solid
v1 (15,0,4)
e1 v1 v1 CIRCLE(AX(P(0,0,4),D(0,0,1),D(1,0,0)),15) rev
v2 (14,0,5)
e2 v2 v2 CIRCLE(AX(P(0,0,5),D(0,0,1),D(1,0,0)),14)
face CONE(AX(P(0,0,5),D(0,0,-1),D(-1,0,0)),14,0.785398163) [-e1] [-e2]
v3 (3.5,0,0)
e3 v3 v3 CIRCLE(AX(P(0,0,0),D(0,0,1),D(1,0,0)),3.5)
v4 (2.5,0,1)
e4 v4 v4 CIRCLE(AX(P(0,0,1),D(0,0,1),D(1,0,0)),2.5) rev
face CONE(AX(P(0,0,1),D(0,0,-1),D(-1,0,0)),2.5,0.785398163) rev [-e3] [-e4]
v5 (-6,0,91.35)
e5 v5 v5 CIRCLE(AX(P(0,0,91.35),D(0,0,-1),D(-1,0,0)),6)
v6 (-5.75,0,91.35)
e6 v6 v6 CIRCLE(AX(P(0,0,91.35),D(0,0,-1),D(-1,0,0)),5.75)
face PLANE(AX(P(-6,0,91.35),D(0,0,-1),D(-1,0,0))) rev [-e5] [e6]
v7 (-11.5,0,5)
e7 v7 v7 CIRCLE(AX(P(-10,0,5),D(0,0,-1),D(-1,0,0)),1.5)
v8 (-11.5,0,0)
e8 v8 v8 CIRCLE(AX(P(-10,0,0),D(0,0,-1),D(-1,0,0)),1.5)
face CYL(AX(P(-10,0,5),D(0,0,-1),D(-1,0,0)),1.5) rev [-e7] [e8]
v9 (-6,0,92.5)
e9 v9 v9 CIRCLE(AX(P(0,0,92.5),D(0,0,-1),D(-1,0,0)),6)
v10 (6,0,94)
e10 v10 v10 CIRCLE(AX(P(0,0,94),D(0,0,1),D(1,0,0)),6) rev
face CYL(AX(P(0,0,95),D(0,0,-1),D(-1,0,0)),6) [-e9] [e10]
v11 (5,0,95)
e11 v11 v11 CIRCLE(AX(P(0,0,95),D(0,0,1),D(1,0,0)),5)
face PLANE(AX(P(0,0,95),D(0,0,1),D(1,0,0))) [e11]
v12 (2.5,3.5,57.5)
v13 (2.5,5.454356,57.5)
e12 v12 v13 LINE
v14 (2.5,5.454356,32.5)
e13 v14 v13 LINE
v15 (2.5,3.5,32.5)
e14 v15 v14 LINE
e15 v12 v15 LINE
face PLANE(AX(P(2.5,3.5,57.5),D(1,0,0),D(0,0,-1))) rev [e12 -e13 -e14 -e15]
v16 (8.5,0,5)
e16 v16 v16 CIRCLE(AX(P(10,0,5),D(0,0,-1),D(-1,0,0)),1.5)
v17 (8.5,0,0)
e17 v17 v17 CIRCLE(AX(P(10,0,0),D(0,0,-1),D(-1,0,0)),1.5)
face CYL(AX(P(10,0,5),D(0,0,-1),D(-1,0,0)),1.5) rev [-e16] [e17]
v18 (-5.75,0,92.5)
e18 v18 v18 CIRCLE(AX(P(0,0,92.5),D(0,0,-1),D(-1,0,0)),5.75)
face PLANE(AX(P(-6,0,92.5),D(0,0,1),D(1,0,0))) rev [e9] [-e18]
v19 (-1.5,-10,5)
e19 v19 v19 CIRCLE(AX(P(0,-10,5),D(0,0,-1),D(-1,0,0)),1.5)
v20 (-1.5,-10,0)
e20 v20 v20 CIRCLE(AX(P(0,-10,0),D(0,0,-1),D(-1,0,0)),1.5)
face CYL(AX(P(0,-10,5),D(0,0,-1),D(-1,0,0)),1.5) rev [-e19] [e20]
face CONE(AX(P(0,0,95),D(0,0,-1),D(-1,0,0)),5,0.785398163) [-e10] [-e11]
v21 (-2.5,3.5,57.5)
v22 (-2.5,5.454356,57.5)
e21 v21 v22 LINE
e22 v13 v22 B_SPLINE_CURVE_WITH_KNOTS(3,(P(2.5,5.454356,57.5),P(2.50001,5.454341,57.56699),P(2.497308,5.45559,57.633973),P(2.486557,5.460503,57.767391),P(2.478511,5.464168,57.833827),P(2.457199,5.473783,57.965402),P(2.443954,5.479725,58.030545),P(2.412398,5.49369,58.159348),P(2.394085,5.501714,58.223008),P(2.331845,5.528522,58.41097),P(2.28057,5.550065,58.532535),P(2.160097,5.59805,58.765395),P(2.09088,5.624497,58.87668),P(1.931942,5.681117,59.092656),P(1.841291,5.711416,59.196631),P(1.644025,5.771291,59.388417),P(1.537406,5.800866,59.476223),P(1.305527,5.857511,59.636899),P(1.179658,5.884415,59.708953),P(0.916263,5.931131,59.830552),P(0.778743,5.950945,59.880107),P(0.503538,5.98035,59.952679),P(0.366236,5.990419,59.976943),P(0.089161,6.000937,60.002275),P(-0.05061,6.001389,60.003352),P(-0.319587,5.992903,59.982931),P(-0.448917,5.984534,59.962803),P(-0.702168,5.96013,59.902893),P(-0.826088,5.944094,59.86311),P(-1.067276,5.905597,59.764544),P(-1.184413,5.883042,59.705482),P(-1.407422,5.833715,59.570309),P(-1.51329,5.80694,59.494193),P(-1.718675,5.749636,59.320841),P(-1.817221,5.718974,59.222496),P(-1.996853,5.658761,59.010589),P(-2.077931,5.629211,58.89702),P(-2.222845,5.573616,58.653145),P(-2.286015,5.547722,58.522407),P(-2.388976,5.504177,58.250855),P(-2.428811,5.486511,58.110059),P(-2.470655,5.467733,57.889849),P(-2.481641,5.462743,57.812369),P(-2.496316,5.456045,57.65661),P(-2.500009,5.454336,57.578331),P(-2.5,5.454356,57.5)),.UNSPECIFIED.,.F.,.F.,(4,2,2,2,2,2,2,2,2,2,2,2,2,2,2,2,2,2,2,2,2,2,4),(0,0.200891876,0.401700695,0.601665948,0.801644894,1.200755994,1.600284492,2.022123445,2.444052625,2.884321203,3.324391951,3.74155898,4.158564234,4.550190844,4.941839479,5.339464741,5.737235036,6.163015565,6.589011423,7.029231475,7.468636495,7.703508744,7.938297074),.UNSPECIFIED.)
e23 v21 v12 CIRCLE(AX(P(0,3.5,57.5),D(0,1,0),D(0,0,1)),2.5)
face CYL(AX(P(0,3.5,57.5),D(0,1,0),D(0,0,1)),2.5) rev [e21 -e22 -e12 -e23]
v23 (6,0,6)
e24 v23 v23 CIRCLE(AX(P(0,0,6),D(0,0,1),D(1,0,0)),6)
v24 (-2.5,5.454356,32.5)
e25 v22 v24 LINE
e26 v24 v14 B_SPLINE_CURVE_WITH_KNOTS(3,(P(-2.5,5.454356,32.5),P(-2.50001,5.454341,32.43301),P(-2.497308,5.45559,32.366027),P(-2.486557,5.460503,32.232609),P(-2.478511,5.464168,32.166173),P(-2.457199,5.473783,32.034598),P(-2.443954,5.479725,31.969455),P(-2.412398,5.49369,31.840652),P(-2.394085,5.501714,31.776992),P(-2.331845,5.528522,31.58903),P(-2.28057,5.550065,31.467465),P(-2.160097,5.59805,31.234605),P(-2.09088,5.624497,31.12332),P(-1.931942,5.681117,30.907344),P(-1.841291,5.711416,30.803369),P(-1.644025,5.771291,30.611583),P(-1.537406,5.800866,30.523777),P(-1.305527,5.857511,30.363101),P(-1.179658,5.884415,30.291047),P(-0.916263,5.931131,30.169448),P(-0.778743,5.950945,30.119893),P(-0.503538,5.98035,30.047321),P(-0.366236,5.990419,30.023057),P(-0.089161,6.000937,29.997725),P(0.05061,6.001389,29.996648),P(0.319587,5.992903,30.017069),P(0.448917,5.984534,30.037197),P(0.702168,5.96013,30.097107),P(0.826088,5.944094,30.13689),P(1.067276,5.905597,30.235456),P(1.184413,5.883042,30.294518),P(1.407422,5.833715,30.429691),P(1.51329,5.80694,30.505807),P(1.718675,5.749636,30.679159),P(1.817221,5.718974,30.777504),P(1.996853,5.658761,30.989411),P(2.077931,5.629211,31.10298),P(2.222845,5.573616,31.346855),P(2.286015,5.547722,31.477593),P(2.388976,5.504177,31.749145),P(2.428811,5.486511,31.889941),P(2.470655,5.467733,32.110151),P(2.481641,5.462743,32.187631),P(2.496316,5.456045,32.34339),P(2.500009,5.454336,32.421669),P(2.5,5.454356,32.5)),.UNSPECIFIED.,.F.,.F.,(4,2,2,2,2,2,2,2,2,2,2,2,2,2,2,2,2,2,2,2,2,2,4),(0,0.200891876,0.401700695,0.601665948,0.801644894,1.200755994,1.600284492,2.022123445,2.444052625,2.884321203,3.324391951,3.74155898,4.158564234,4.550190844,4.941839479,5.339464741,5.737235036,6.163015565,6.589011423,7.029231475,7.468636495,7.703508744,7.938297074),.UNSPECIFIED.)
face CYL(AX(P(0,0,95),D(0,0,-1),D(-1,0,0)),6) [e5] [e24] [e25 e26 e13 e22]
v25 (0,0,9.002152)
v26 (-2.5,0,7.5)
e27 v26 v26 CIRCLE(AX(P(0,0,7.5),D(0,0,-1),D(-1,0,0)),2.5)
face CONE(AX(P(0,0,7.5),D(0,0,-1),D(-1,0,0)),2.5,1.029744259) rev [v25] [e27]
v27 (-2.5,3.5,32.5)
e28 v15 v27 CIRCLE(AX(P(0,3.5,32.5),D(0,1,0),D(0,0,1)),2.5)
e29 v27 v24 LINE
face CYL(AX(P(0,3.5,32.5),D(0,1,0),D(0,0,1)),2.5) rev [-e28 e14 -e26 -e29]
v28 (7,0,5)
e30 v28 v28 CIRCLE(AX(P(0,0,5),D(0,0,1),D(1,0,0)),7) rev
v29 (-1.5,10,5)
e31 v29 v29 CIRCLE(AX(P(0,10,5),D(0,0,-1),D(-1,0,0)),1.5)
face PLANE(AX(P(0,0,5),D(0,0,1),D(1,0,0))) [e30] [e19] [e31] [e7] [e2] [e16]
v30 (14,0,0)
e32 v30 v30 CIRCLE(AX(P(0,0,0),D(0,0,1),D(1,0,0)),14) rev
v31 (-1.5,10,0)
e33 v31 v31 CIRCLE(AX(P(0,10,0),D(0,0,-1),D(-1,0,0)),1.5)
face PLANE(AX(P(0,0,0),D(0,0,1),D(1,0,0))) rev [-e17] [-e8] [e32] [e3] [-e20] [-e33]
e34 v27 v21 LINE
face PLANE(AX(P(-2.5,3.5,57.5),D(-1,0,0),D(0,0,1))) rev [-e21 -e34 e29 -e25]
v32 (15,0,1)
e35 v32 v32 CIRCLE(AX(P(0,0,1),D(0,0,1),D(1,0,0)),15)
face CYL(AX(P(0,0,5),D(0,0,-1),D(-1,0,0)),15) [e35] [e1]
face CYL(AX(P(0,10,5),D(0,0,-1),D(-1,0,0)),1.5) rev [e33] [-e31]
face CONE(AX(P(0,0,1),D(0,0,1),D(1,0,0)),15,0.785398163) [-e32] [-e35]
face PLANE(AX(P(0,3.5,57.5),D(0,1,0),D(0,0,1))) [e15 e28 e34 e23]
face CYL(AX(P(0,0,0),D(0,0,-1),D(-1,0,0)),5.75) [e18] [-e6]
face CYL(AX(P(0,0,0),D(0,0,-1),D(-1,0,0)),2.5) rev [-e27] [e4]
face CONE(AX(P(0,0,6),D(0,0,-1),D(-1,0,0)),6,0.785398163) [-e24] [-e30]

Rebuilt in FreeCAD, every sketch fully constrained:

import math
import FreeCAD as App
import Part
import Sketcher
Q = App.Units.Quantity


def edges_at(feature, points):
    """Names of the edges that pass closest to the given points."""
    edges = feature.Shape.Edges
    near = lambda p: min(range(len(edges)), key=lambda i: edges[i].distToShape(Part.Vertex(*p))[0])
    return sorted({f"Edge{near(p) + 1}" for p in points})

doc = App.newDocument("Part")
body = doc.addObject("PartDesign::Body", "Body")

# Sketch on XY plane
sketch1 = doc.addObject("Sketcher::SketchObject", "Sketch")
body.addObject(sketch1)
sketch1.AttachmentSupport = (doc.XY_Plane, [""])
sketch1.MapMode = "FlatFace"
sketch1.addGeometry(Part.Circle(App.Vector(0, 0, 0), App.Vector(0, 0, 1), 15), False)
sketch1.addConstraint(Sketcher.Constraint("Coincident", 0, 3, -1, 1))
sketch1.addConstraint(Sketcher.Constraint("Diameter", 0, Q("30 mm")))
pad1 = doc.addObject("PartDesign::Pad", "Pad")
body.addObject(pad1)
pad1.Profile = sketch1
pad1.Length = 5

# Sketch on XY plane
sketch2 = doc.addObject("Sketcher::SketchObject", "Sketch001")
body.addObject(sketch2)
sketch2.AttachmentSupport = (doc.XY_Plane, [""])
sketch2.MapMode = "FlatFace"
sketch2.addGeometry(Part.Circle(App.Vector(-10, 0, 0), App.Vector(0, 0, 1), 1.5), False)
sketch2.addGeometry(Part.Circle(App.Vector(0, -10, 0), App.Vector(0, 0, 1), 1.5), False)
sketch2.addGeometry(Part.Circle(App.Vector(10, 0, 0), App.Vector(0, 0, 1), 1.5), False)
sketch2.addGeometry(Part.Circle(App.Vector(0, 10, 0), App.Vector(0, 0, 1), 1.5), False)
sketch2.addConstraint(Sketcher.Constraint("Equal", 0, 1))
sketch2.addConstraint(Sketcher.Constraint("Equal", 1, 2))
sketch2.addConstraint(Sketcher.Constraint("Equal", 2, 3))
sketch2.addConstraint(Sketcher.Constraint("Symmetric", 0, 3, 2, 3, -1, 1))
sketch2.addConstraint(Sketcher.Constraint("Symmetric", 1, 3, 3, 3, -1, 1))
sketch2.addConstraint(Sketcher.Constraint("PointOnObject", 0, 3, -1))
sketch2.addConstraint(Sketcher.Constraint("PointOnObject", 1, 3, -2))
sketch2.addConstraint(Sketcher.Constraint("Diameter", 0, Q("3 mm")))
sketch2.addConstraint(Sketcher.Constraint("DistanceX", 0, 3, -1, 1, Q("10 mm")))
sketch2.addConstraint(Sketcher.Constraint("DistanceY", 1, 3, -1, 1, Q("10 mm")))
pocket1 = doc.addObject("PartDesign::Pocket", "Pocket")
body.addObject(pocket1)
pocket1.Profile = sketch2
pocket1.Type = "ThroughAll"
pocket1.Midplane = True

# Sketch on XY plane
sketch3 = doc.addObject("Sketcher::SketchObject", "Sketch002")
body.addObject(sketch3)
sketch3.AttachmentSupport = (doc.XY_Plane, [""])
sketch3.MapMode = "FlatFace"
sketch3.AttachmentOffset = App.Placement(App.Vector(0, 0, 5), App.Rotation())
sketch3.addGeometry(Part.Circle(App.Vector(0, 0, 0), App.Vector(0, 0, 1), 6), False)
sketch3.addConstraint(Sketcher.Constraint("Coincident", 0, 3, -1, 1))
sketch3.addConstraint(Sketcher.Constraint("Diameter", 0, Q("12 mm")))
pad2 = doc.addObject("PartDesign::Pad", "Pad001")
body.addObject(pad2)
pad2.Profile = sketch3
pad2.Length = 90
doc.recompute()

chamfer = doc.addObject("PartDesign::Chamfer", "Chamfer")
body.addObject(chamfer)
chamfer.Base = (pad2, edges_at(pad2, [
    (-15, 0, 0),
    (-6, 0, 5),
    (-6, 0, 95),
    (-15, 0, 5),
]))
chamfer.Size = 1

# Sketch on XZ plane
sketch4 = doc.addObject("Sketcher::SketchObject", "Sketch003")
body.addObject(sketch4)
sketch4.AttachmentSupport = (doc.XZ_Plane, [""])
sketch4.MapMode = "FlatFace"
sketch4.AttachmentOffset = App.Placement(App.Vector(0, 0, -6), App.Rotation())
sketch4.addGeometry(Part.LineSegment(App.Vector(-2.5, 32.5, 0), App.Vector(-2.5, 57.5, 0)), False)
sketch4.addGeometry(Part.ArcOfCircle(Part.Circle(App.Vector(0, 57.5, 0), App.Vector(0, 0, 1), 2.5), math.radians(0), math.radians(180)), False)
sketch4.addGeometry(Part.LineSegment(App.Vector(2.5, 57.5, 0), App.Vector(2.5, 32.5, 0)), False)
sketch4.addGeometry(Part.ArcOfCircle(Part.Circle(App.Vector(0, 32.5, 0), App.Vector(0, 0, 1), 2.5), math.radians(180), math.radians(360)), False)
sketch4.addConstraint(Sketcher.Constraint("Tangent", 0, 2, 1, 2))
sketch4.addConstraint(Sketcher.Constraint("Tangent", 1, 1, 2, 1))
sketch4.addConstraint(Sketcher.Constraint("Tangent", 2, 2, 3, 2))
sketch4.addConstraint(Sketcher.Constraint("Tangent", 3, 1, 0, 1))
sketch4.addConstraint(Sketcher.Constraint("Vertical", 0))
sketch4.addConstraint(Sketcher.Constraint("Vertical", 2))
sketch4.addConstraint(Sketcher.Constraint("PointOnObject", 1, 3, -2))
sketch4.addConstraint(Sketcher.Constraint("Radius", 1, Q("2.5 mm")))
sketch4.addConstraint(Sketcher.Constraint("DistanceY", 0, 1, 0, 2, Q("25 mm")))
sketch4.addConstraint(Sketcher.Constraint("DistanceY", -1, 1, 1, 3, Q("57.5 mm")))
pocket2 = doc.addObject("PartDesign::Pocket", "Pocket001")
body.addObject(pocket2)
pocket2.Profile = sketch4
pocket2.Length = 2.5
pocket2.Reversed = True

# Sketch on XZ plane
sketch5 = doc.addObject("Sketcher::SketchObject", "Sketch004")
body.addObject(sketch5)
sketch5.AttachmentSupport = (doc.XZ_Plane, [""])
sketch5.MapMode = "FlatFace"
sketch5.addGeometry(Part.LineSegment(App.Vector(-6, 91.35, 0), App.Vector(-6, 92.5, 0)), False)
sketch5.addGeometry(Part.LineSegment(App.Vector(-6, 92.5, 0), App.Vector(-5.75, 92.5, 0)), False)
sketch5.addGeometry(Part.LineSegment(App.Vector(-5.75, 92.5, 0), App.Vector(-5.75, 91.35, 0)), False)
sketch5.addGeometry(Part.LineSegment(App.Vector(-5.75, 91.35, 0), App.Vector(-6, 91.35, 0)), False)
sketch5.addConstraint(Sketcher.Constraint("Coincident", 0, 2, 1, 1))
sketch5.addConstraint(Sketcher.Constraint("Coincident", 1, 2, 2, 1))
sketch5.addConstraint(Sketcher.Constraint("Coincident", 2, 2, 3, 1))
sketch5.addConstraint(Sketcher.Constraint("Coincident", 3, 2, 0, 1))
sketch5.addConstraint(Sketcher.Constraint("Vertical", 0))
sketch5.addConstraint(Sketcher.Constraint("Horizontal", 1))
sketch5.addConstraint(Sketcher.Constraint("Vertical", 2))
sketch5.addConstraint(Sketcher.Constraint("Horizontal", 3))
sketch5.addConstraint(Sketcher.Constraint("DistanceX", 0, 2, -1, 1, Q("6 mm")))
sketch5.addConstraint(Sketcher.Constraint("DistanceX", 1, 1, 1, 2, Q("0.25 mm")))
sketch5.addConstraint(Sketcher.Constraint("DistanceY", 0, 1, 0, 2, Q("1.15 mm")))
sketch5.addConstraint(Sketcher.Constraint("DistanceY", -1, 1, 0, 2, Q("92.5 mm")))
groove = doc.addObject("PartDesign::Groove", "Groove")
body.addObject(groove)
groove.Profile = sketch5
groove.ReferenceAxis = (sketch5, ["V_Axis"])
groove.Angle = 360

# Sketch on XY plane
sketch6 = doc.addObject("Sketcher::SketchObject", "Sketch005")
body.addObject(sketch6)
sketch6.AttachmentSupport = (doc.XY_Plane, [""])
sketch6.MapMode = "FlatFace"
sketch6.addGeometry(Part.Circle(App.Vector(0, 0, 0), App.Vector(0, 0, 1), 2.5), False)
sketch6.addConstraint(Sketcher.Constraint("Coincident", 0, 3, -1, 1))
sketch6.addConstraint(Sketcher.Constraint("Diameter", 0, Q("5 mm")))
doc.recompute()
hole = doc.addObject("PartDesign::Hole", "Hole")
body.addObject(hole)
hole.Profile = sketch6
hole.ThreadType = "None"
hole.Diameter = 5
hole.DepthType = "Dimension"
hole.Depth = 7.5
hole.DrillPoint = "Angled"
hole.DrillPointAngle = 118
hole.Reversed = True
doc.recompute()

chamfer2 = doc.addObject("PartDesign::Chamfer", "Chamfer001")
body.addObject(chamfer2)
chamfer2.Base = (hole, edges_at(hole, [(-2.5, 0, 0)]))
chamfer2.Size = 1

doc.recompute()
